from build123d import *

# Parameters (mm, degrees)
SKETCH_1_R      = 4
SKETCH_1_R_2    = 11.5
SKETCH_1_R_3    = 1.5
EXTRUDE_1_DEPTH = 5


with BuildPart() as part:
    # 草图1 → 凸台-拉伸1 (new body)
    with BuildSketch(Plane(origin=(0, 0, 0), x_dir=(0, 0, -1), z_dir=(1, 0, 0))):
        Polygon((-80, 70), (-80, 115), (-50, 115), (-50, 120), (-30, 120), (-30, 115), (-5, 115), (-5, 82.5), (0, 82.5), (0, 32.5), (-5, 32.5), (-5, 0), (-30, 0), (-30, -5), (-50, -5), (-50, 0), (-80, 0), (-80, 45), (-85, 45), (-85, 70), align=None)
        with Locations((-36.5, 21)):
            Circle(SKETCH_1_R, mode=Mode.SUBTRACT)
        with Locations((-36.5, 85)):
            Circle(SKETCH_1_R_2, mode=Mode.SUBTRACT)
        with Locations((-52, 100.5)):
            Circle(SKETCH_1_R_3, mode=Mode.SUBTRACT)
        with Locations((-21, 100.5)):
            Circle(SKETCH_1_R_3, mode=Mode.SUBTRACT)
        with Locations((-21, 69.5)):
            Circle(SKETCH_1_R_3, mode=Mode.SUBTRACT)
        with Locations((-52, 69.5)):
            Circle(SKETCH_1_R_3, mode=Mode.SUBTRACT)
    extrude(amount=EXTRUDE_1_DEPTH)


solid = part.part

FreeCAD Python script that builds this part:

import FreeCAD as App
import Part
import Sketcher
from FreeCAD import Vector


def add_polygon(sketch, points):
    """Adds a closed chain of lines whose ends are joined by coincident constraints."""
    first, n = sketch.GeometryCount, len(points)
    for a, b in zip(points, points[1:] + points[:1]):
        sketch.addGeometry(Part.LineSegment(App.Vector(*a, 0), App.Vector(*b, 0)), False)
    for i in range(n):
        sketch.addConstraint(Sketcher.Constraint("Coincident", first + i, 2, first + (i + 1) % n, 1))

doc = App.newDocument("Part")
params = doc.addObject("Spreadsheet::Sheet", "Params")
for row, (alias, value) in enumerate([
    ("sketch1_diameter", "8 mm"),
    ("sketch1_diameter2", "3 mm"),
    ("sketch1_diameter3", "23 mm"),
    ("sketch1_width", "45 mm"),
    ("sketch1_width2", "25 mm"),
    ("pad1_length", "5 mm"),
], start=1):
    params.set(f"A{row}", alias)
    params.set(f"B{row}", "=" + value)
    params.setAlias(f"B{row}", alias)

body = doc.addObject("PartDesign::Body", "Body")

# Sketch on YZ plane
sketch1 = body.newObject("Sketcher::SketchObject", "Sketch")
sketch1.AttachmentSupport = (doc.getObject("YZ_Plane"), [""])
sketch1.MapMode = "FlatFace"
add_polygon(sketch1, [(115, 80), (70, 80), (70, 85), (45, 85), (45, 80), (0, 80), (0, 50), (-5, 50), (-5, 30), (0, 30), (0, 5), (32.5, 5), (32.5, 0), (82.5, 0), (82.5, 5), (115, 5), (115, 30), (120, 30), (120, 50), (115, 50)])  # lines 0-19
sketch1.addGeometry(Part.Circle(Vector(21, 36.5, 0), Vector(0, 0, 1), 4), False)  # 20
sketch1.addGeometry(Part.Circle(Vector(69.5, 21, 0), Vector(0, 0, 1), 1.5), False)  # 21
sketch1.addGeometry(Part.Circle(Vector(100.5, 21, 0), Vector(0, 0, 1), 1.5), False)  # 22
sketch1.addGeometry(Part.Circle(Vector(69.5, 52, 0), Vector(0, 0, 1), 1.5), False)  # 23
sketch1.addGeometry(Part.Circle(Vector(85, 36.5, 0), Vector(0, 0, 1), 11.5), False)  # 24
sketch1.addGeometry(Part.Circle(Vector(100.5, 52, 0), Vector(0, 0, 1), 1.5), False)  # 25
sketch1.addConstraint(Sketcher.Constraint("Horizontal", 0))
sketch1.addConstraint(Sketcher.Constraint("Vertical", 1))
sketch1.addConstraint(Sketcher.Constraint("Horizontal", 2))
sketch1.addConstraint(Sketcher.Constraint("Vertical", 3))
sketch1.addConstraint(Sketcher.Constraint("Horizontal", 4))
sketch1.addConstraint(Sketcher.Constraint("Vertical", 5))
sketch1.addConstraint(Sketcher.Constraint("Horizontal", 6))
sketch1.addConstraint(Sketcher.Constraint("Vertical", 7))
sketch1.addConstraint(Sketcher.Constraint("Horizontal", 8))
sketch1.addConstraint(Sketcher.Constraint("Vertical", 9))
sketch1.addConstraint(Sketcher.Constraint("Horizontal", 10))
sketch1.addConstraint(Sketcher.Constraint("Vertical", 11))
sketch1.addConstraint(Sketcher.Constraint("Horizontal", 12))
sketch1.addConstraint(Sketcher.Constraint("Vertical", 13))
sketch1.addConstraint(Sketcher.Constraint("Horizontal", 14))
sketch1.addConstraint(Sketcher.Constraint("Vertical", 15))
sketch1.addConstraint(Sketcher.Constraint("Horizontal", 16))
sketch1.addConstraint(Sketcher.Constraint("Vertical", 17))
sketch1.addConstraint(Sketcher.Constraint("Horizontal", 18))
sketch1.addConstraint(Sketcher.Constraint("Vertical", 19))
sketch1.addConstraint(Sketcher.Constraint("Equal", 21, 22))
sketch1.addConstraint(Sketcher.Constraint("Equal", 22, 23))
sketch1.addConstraint(Sketcher.Constraint("Equal", 23, 25))
sketch1.addConstraint(Sketcher.Constraint("PointOnObject", 4, 2, -2))
sketch1.addConstraint(Sketcher.Constraint("PointOnObject", 8, 2, -2))
sketch1.addConstraint(Sketcher.Constraint("PointOnObject", 11, 2, -1))
sketch1.addConstraint(Sketcher.Constraint("Horizontal", 21, 3, 22, 3))
sketch1.addConstraint(Sketcher.Constraint("Horizontal", 20, 3, 24, 3))
sketch1.addConstraint(Sketcher.Constraint("Horizontal", 23, 3, 25, 3))
sketch1.addConstraint(Sketcher.Constraint("Horizontal", 0, 2, 3, 2))
sketch1.addConstraint(Sketcher.Constraint("Horizontal", 10, 2, 13, 2))
sketch1.addConstraint(Sketcher.Constraint("Horizontal", 8, 2, 15, 2))
sketch1.addConstraint(Sketcher.Constraint("Horizontal", 6, 2, 17, 2))
sketch1.addConstraint(Sketcher.Constraint("Vertical", 21, 3, 23, 3))
sketch1.addConstraint(Sketcher.Constraint("Vertical", 22, 3, 25, 3))
sketch1.addConstraint(Sketcher.Constraint("Vertical", 15, 2, 18, 2))
sketch1.addConstraint(Sketcher.Constraint("Equal", 0, 4))
sketch1.addConstraint(Sketcher.Constraint("Equal", 10, 14))
sketch1.addConstraint(Sketcher.Constraint("Equal", 8, 16))
sketch1.addConstraint(Sketcher.Constraint("Equal", 18, 1))
sketch1.addConstraint(Sketcher.Constraint("Equal", 2, 9))
sketch1.addConstraint(Sketcher.Constraint("Equal", 3, 11))
sketch1.addConstraint(Sketcher.Constraint("Diameter", 20, 8.0))
sketch1.addConstraint(Sketcher.Constraint("Diameter", 21, 3.0))
sketch1.addConstraint(Sketcher.Constraint("Diameter", 24, 23.0))
sketch1.addConstraint(Sketcher.Constraint("DistanceX", 0, 2, 0, 1, 45.0))
sketch1.addConstraint(Sketcher.Constraint("DistanceX", 2, 2, 2, 1, 25.0))
sketch1.addConstraint(Sketcher.Constraint("DistanceX", 6, 2, 6, 1, 5.0))
sketch1.addConstraint(Sketcher.Constraint("DistanceX", 12, 1, 12, 2, 50.0))
sketch1.addConstraint(Sketcher.Constraint("DistanceY", 5, 2, 5, 1, 30.0))
sketch1.addConstraint(Sketcher.Constraint("DistanceY", 7, 2, 7, 1, 20.0))
sketch1.addConstraint(Sketcher.Constraint("DistanceX", -1, 1, 20, 3, 21.0))
sketch1.addConstraint(Sketcher.Constraint("DistanceY", -1, 1, 21, 3, 21.0))
sketch1.addConstraint(Sketcher.Constraint("DistanceY", -1, 1, 23, 3, 52.0))
sketch1.addConstraint(Sketcher.Constraint("DistanceX", -1, 1, 24, 3, 85.0))
sketch1.addConstraint(Sketcher.Constraint("DistanceX", 21, 3, 22, 3, 31.0))
sketch1.addConstraint(Sketcher.Constraint("DistanceX", 10, 2, 21, 3, 37.0))
sketch1.addConstraint(Sketcher.Constraint("DistanceY", -1, 1, 20, 3, 36.5))
sketch1.setExpression("Constraints[62]", "Params.sketch1_diameter")
sketch1.setExpression("Constraints[63]", "Params.sketch1_diameter2")
sketch1.setExpression("Constraints[64]", "Params.sketch1_diameter3")
sketch1.setExpression("Constraints[65]", "Params.sketch1_width")
sketch1.setExpression("Constraints[66]", "Params.sketch1_width2")
pad1 = body.newObject("PartDesign::Pad", "Pad")
pad1.Profile = sketch1
pad1.setExpression("Length", "Params.pad1_length")

doc.recompute()
